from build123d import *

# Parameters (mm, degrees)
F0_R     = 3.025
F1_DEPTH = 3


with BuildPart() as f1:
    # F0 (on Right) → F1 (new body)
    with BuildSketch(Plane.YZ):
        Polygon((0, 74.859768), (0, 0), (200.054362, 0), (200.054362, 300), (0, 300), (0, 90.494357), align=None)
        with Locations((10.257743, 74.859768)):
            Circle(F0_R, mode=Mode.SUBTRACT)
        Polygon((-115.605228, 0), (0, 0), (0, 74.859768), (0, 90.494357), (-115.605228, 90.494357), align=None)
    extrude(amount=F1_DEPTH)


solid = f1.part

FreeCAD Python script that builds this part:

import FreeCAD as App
import Part
import Sketcher


def add_polygon(sketch, points):
    """Adds a closed chain of lines whose ends are joined by coincident constraints."""
    first, n = sketch.GeometryCount, len(points)
    for a, b in zip(points, points[1:] + points[:1]):
        sketch.addGeometry(Part.LineSegment(App.Vector(*a, 0), App.Vector(*b, 0)), False)
    for i in range(n):
        sketch.addConstraint(Sketcher.Constraint("Coincident", first + i, 2, first + (i + 1) % n, 1))

doc = App.newDocument("Part")
body = doc.addObject("PartDesign::Body", "Body")

sketch1 = doc.addObject("Sketcher::SketchObject", "Sketch")
body.addObject(sketch1)
sketch1.AttachmentSupport = (doc.YZ_Plane, [""])
sketch1.MapMode = "FlatFace"
add_polygon(sketch1, [(200.054362, 0), (200.054362, 300), (0, 300), (0, 90.494357), (-115.605228, 90.494357), (-115.605228, 0)])
sketch1.addGeometry(Part.Circle(App.Vector(10.257743, 74.859768, 0), App.Vector(0, 0, 1), 3.025), False)
sketch1.addConstraint(Sketcher.Constraint("Vertical", 0))
sketch1.addConstraint(Sketcher.Constraint("Horizontal", 1))
sketch1.addConstraint(Sketcher.Constraint("Vertical", 2))
sketch1.addConstraint(Sketcher.Constraint("Horizontal", 3))
sketch1.addConstraint(Sketcher.Constraint("Vertical", 4))
sketch1.addConstraint(Sketcher.Constraint("Horizontal", 5))
sketch1.addConstraint(Sketcher.Constraint("PointOnObject", 1, 2, -2))
sketch1.addConstraint(Sketcher.Constraint("PointOnObject", 4, 2, -1))
sketch1.addConstraint(Sketcher.Constraint("Diameter", 6, 6.05))
sketch1.addConstraint(Sketcher.Constraint("DistanceY", 0, 1, 0, 2, 300.0))
sketch1.addConstraint(Sketcher.Constraint("DistanceX", 1, 2, 1, 1, 200.054362))
sketch1.addConstraint(Sketcher.Constraint("DistanceX", 5, 1, 5, 2, 315.65959))
sketch1.addConstraint(Sketcher.Constraint("DistanceY", 2, 2, 2, 1, 209.505643))
sketch1.addConstraint(Sketcher.Constraint("DistanceY", -1, 1, 6, 3, 74.859768))
sketch1.addConstraint(Sketcher.Constraint("DistanceX", 6, 3, 0, 2, 189.796619))
pad1 = doc.addObject("PartDesign::Pad", "Pad")
body.addObject(pad1)
pad1.Profile = sketch1
pad1.Length = 3

doc.recompute()
